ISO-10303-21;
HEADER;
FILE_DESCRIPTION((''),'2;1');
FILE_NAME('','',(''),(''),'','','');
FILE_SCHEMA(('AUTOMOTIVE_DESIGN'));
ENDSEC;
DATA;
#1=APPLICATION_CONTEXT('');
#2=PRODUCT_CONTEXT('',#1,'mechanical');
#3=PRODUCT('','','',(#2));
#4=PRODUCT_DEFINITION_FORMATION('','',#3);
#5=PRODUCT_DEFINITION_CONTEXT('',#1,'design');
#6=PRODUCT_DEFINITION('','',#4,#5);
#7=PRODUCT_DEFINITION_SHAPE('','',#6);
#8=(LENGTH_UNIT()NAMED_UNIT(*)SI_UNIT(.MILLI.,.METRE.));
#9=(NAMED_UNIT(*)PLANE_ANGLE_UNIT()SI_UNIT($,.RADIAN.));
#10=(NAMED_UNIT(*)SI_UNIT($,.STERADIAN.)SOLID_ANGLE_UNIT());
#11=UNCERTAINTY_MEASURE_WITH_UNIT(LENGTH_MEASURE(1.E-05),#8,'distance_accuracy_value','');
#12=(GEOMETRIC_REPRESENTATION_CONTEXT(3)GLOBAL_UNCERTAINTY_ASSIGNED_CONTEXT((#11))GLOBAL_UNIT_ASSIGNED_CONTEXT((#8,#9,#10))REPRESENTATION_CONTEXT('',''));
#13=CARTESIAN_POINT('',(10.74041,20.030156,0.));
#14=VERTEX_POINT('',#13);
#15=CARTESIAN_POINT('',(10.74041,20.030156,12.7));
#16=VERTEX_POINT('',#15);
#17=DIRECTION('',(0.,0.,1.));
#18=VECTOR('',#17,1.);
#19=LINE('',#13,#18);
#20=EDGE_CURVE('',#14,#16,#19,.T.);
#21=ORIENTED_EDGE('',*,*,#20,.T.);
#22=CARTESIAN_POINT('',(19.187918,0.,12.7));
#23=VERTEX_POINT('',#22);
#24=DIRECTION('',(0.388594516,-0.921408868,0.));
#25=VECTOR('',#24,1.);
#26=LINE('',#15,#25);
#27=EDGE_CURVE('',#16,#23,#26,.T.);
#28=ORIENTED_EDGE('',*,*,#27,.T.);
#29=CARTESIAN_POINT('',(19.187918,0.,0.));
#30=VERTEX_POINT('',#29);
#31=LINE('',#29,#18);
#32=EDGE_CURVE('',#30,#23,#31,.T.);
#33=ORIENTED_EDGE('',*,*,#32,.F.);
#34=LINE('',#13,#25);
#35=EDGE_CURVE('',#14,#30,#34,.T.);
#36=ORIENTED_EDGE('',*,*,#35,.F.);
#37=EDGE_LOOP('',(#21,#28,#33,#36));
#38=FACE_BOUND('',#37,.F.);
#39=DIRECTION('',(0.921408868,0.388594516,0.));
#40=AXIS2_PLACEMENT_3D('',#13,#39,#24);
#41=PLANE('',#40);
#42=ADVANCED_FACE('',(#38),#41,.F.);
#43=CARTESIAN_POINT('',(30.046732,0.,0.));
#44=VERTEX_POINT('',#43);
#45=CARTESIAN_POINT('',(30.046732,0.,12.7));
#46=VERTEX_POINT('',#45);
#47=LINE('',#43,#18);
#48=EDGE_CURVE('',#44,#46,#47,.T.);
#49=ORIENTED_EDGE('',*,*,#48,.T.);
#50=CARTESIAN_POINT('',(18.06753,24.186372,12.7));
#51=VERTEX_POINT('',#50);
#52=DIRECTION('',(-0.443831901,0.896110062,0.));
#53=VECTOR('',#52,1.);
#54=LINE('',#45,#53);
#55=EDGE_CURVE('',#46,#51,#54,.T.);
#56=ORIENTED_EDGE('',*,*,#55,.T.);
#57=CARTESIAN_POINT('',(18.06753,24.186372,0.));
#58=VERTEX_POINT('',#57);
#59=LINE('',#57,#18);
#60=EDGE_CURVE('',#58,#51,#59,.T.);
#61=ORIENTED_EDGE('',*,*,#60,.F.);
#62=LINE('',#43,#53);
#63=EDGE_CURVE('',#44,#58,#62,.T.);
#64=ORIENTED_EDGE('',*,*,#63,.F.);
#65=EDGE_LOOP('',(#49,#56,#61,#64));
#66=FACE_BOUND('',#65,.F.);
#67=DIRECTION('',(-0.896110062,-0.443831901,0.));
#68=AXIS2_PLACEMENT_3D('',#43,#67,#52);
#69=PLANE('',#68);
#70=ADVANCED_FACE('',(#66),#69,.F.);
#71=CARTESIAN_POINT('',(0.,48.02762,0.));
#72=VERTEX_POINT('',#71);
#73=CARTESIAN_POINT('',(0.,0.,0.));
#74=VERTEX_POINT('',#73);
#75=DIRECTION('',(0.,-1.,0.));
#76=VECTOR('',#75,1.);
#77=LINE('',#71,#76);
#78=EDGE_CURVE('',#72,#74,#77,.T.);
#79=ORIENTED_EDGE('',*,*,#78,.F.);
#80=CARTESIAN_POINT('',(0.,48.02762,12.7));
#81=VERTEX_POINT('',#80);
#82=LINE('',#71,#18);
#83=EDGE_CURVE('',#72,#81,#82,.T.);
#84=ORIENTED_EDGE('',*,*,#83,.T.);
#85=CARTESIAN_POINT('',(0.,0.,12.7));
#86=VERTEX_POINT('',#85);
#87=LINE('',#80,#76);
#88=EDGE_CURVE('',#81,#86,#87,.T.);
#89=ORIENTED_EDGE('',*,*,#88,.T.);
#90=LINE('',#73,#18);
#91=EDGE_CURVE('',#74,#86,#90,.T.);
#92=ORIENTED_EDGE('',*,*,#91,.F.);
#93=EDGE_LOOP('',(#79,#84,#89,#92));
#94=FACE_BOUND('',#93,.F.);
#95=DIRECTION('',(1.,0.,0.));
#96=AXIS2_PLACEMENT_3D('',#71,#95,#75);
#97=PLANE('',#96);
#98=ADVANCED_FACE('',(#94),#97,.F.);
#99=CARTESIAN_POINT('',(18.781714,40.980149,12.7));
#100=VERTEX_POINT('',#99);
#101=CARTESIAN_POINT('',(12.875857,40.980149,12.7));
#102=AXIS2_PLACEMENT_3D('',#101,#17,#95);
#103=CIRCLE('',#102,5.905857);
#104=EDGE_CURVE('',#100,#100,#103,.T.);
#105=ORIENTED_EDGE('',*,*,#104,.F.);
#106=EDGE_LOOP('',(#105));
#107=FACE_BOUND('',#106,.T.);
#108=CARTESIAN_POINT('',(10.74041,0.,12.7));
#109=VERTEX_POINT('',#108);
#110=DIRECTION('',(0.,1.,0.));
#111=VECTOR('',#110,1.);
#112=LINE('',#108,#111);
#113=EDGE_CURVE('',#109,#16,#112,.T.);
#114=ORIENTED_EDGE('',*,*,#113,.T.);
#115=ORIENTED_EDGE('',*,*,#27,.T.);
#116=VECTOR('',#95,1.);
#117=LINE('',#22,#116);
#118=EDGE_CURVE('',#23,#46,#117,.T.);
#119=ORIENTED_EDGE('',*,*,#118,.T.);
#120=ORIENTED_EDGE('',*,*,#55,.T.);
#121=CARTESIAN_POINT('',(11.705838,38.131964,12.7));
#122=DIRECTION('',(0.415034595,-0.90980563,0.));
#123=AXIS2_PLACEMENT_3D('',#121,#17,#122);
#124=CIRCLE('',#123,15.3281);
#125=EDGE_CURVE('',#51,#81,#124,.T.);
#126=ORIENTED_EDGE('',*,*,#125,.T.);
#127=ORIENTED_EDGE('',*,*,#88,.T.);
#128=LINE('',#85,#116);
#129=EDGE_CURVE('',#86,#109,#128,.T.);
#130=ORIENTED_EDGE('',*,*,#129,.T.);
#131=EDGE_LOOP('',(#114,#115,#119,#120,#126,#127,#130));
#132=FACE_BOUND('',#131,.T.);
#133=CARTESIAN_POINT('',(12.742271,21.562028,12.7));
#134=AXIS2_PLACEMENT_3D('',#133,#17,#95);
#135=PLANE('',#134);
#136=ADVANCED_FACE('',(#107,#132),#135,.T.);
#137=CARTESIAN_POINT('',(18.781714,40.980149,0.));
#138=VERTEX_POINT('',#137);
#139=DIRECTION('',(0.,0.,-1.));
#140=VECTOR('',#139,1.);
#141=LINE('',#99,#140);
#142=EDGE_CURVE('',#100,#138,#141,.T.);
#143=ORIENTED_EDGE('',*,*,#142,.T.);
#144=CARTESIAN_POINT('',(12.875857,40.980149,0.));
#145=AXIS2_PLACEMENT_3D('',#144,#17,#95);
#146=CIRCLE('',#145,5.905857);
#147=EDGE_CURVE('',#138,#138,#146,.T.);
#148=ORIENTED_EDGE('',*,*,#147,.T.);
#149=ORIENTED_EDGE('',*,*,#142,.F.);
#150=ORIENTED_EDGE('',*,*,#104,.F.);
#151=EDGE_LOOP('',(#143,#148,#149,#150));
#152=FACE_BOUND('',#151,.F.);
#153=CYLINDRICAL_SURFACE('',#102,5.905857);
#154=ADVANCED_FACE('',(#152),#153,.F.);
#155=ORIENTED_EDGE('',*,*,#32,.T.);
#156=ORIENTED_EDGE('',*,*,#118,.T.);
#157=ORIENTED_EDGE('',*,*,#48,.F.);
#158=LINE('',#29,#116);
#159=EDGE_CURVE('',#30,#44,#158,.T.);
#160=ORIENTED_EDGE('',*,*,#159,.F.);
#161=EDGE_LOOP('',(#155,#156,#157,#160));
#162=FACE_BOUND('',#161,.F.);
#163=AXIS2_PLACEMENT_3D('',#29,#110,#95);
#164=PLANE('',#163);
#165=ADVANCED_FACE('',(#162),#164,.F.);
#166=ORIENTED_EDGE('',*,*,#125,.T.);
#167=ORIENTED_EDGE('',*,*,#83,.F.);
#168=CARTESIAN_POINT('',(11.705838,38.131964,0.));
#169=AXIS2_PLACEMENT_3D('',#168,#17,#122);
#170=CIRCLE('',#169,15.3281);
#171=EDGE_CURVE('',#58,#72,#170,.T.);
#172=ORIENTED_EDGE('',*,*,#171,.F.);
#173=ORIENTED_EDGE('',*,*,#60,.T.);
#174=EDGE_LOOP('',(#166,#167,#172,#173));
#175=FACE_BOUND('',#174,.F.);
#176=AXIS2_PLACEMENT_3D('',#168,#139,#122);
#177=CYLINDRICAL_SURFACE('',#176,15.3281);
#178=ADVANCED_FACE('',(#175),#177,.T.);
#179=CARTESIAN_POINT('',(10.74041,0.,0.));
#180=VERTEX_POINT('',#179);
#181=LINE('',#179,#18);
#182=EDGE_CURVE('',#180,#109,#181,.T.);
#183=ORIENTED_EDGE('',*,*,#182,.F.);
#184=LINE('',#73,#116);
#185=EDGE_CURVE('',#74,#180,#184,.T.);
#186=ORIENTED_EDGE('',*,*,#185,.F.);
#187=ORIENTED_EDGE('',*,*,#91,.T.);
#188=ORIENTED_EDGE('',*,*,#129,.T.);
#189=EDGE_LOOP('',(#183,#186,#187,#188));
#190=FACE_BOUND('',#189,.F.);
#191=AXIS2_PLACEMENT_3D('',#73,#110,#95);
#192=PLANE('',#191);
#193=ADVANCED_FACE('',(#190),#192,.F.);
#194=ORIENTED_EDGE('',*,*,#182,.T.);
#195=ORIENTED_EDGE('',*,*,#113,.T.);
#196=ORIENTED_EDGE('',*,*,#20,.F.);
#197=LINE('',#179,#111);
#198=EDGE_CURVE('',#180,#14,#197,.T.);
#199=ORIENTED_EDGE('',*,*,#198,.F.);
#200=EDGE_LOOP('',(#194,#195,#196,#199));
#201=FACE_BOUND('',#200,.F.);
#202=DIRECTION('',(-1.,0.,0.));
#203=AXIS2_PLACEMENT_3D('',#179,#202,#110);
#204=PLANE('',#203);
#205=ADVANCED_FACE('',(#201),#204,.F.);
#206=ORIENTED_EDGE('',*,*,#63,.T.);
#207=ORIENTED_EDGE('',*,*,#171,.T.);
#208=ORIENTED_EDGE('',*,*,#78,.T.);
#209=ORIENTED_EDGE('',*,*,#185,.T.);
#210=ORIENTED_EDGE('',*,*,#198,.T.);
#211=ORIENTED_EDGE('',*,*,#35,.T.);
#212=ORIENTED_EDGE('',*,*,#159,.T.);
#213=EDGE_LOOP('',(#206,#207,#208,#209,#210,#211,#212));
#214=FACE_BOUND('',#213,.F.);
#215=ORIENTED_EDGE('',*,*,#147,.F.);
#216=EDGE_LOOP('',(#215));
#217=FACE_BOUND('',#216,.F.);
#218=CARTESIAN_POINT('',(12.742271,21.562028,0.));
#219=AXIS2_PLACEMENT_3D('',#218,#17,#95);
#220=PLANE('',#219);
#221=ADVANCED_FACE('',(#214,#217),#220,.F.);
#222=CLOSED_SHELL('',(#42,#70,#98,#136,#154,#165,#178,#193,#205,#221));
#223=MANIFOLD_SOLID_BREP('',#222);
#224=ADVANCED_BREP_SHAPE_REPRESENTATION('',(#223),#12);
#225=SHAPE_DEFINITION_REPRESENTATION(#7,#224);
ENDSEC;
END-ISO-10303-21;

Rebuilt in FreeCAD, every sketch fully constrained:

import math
import FreeCAD as App
import Part
import Sketcher
from FreeCAD import Vector
Q = App.Units.Quantity

doc = App.newDocument("Part")
body = doc.addObject("PartDesign::Body", "Body")

sketch1 = body.newObject("Sketcher::SketchObject", "Sketch")
sketch1.AttachmentSupport = (doc.getObject("XY_Plane"), [""])
sketch1.MapMode = "FlatFace"
sketch1.addGeometry([
    Part.LineSegment(Vector(0, 48.02762, 0), Vector(0, 0, 0)),
    Part.LineSegment(Vector(0, 0, 0), Vector(10.74041, 0, 0)),
    Part.LineSegment(Vector(10.74041, 0, 0), Vector(10.74041, 20.030156, 0)),
    Part.LineSegment(Vector(10.74041, 20.030156, 0), Vector(19.187918, 0, 0)),
    Part.LineSegment(Vector(19.187918, 0, 0), Vector(30.046732, 0, 0)),
    Part.LineSegment(Vector(30.046732, 0, 0), Vector(18.06753, 24.186372, 0)),
    Part.ArcOfCircle(Part.Circle(Vector(11.705838, 38.131964, 0), Vector(0, 0, 1), 15.3281), math.radians(-65.478505), math.radians(139.790133)),
], False)
sketch1.addConstraint([
    Sketcher.Constraint("Coincident", 0, 2, 1, 1),
    Sketcher.Constraint("Coincident", 1, 2, 2, 1),
    Sketcher.Constraint("Coincident", 2, 2, 3, 1),
    Sketcher.Constraint("Coincident", 3, 2, 4, 1),
    Sketcher.Constraint("Coincident", 4, 2, 5, 1),
    Sketcher.Constraint("Coincident", 5, 2, 6, 1),
    Sketcher.Constraint("Coincident", 6, 2, 0, 1),
    Sketcher.Constraint("Vertical", 0),
    Sketcher.Constraint("Horizontal", 1),
    Sketcher.Constraint("Vertical", 2),
    Sketcher.Constraint("Horizontal", 4),
    Sketcher.Constraint("Coincident", 0, 2, -1, 1),
    Sketcher.Constraint("PointOnObject", 3, 2, -1),
    Sketcher.Constraint("Radius", 6, 15.3281),
    Sketcher.Constraint("DistanceX", 1, 1, 1, 2, 10.74041),
    Sketcher.Constraint("DistanceY", 0, 2, 0, 1, 48.02762),
    Sketcher.Constraint("DistanceX", 5, 2, 4, 2, 11.979202),
    Sketcher.Constraint("Distance", 3, 21.738619),
    Sketcher.Constraint("DistanceX", 4, 1, 4, 2, 10.858814),
    Sketcher.Constraint("DistanceY", 2, 1, 2, 2, 20.030156),
    Sketcher.Constraint("DistanceX", -1, 1, 6, 3, 11.705838),
])
pad1 = body.newObject("PartDesign::Pad", "Pad")
pad1.Profile = sketch1
pad1.Length = Q("0.5 in")

sketch2 = body.newObject("Sketcher::SketchObject", "Sketch001")
sketch2.AttachmentSupport = (doc.getObject("XY_Plane"), [""])
sketch2.MapMode = "FlatFace"
sketch2.AttachmentOffset = App.Placement(Vector(0, 0, 0.5 * 25.4), App.Rotation())
sketch2.addGeometry(Part.Circle(Vector(12.875857, 40.980149, 0), Vector(0, 0, 1), 5.905857), False)
sketch2.addConstraint([
    Sketcher.Constraint("Diameter", 0, 11.811714),
    Sketcher.Constraint("DistanceY", -1, 1, 0, 3, 40.980149),
    Sketcher.Constraint("DistanceX", -1, 1, 0, 3, 12.875857),
])
pocket1 = body.newObject("PartDesign::Pocket", "Pocket")
pocket1.Profile = sketch2
pocket1.Length = Q("1 in")

doc.recompute()
